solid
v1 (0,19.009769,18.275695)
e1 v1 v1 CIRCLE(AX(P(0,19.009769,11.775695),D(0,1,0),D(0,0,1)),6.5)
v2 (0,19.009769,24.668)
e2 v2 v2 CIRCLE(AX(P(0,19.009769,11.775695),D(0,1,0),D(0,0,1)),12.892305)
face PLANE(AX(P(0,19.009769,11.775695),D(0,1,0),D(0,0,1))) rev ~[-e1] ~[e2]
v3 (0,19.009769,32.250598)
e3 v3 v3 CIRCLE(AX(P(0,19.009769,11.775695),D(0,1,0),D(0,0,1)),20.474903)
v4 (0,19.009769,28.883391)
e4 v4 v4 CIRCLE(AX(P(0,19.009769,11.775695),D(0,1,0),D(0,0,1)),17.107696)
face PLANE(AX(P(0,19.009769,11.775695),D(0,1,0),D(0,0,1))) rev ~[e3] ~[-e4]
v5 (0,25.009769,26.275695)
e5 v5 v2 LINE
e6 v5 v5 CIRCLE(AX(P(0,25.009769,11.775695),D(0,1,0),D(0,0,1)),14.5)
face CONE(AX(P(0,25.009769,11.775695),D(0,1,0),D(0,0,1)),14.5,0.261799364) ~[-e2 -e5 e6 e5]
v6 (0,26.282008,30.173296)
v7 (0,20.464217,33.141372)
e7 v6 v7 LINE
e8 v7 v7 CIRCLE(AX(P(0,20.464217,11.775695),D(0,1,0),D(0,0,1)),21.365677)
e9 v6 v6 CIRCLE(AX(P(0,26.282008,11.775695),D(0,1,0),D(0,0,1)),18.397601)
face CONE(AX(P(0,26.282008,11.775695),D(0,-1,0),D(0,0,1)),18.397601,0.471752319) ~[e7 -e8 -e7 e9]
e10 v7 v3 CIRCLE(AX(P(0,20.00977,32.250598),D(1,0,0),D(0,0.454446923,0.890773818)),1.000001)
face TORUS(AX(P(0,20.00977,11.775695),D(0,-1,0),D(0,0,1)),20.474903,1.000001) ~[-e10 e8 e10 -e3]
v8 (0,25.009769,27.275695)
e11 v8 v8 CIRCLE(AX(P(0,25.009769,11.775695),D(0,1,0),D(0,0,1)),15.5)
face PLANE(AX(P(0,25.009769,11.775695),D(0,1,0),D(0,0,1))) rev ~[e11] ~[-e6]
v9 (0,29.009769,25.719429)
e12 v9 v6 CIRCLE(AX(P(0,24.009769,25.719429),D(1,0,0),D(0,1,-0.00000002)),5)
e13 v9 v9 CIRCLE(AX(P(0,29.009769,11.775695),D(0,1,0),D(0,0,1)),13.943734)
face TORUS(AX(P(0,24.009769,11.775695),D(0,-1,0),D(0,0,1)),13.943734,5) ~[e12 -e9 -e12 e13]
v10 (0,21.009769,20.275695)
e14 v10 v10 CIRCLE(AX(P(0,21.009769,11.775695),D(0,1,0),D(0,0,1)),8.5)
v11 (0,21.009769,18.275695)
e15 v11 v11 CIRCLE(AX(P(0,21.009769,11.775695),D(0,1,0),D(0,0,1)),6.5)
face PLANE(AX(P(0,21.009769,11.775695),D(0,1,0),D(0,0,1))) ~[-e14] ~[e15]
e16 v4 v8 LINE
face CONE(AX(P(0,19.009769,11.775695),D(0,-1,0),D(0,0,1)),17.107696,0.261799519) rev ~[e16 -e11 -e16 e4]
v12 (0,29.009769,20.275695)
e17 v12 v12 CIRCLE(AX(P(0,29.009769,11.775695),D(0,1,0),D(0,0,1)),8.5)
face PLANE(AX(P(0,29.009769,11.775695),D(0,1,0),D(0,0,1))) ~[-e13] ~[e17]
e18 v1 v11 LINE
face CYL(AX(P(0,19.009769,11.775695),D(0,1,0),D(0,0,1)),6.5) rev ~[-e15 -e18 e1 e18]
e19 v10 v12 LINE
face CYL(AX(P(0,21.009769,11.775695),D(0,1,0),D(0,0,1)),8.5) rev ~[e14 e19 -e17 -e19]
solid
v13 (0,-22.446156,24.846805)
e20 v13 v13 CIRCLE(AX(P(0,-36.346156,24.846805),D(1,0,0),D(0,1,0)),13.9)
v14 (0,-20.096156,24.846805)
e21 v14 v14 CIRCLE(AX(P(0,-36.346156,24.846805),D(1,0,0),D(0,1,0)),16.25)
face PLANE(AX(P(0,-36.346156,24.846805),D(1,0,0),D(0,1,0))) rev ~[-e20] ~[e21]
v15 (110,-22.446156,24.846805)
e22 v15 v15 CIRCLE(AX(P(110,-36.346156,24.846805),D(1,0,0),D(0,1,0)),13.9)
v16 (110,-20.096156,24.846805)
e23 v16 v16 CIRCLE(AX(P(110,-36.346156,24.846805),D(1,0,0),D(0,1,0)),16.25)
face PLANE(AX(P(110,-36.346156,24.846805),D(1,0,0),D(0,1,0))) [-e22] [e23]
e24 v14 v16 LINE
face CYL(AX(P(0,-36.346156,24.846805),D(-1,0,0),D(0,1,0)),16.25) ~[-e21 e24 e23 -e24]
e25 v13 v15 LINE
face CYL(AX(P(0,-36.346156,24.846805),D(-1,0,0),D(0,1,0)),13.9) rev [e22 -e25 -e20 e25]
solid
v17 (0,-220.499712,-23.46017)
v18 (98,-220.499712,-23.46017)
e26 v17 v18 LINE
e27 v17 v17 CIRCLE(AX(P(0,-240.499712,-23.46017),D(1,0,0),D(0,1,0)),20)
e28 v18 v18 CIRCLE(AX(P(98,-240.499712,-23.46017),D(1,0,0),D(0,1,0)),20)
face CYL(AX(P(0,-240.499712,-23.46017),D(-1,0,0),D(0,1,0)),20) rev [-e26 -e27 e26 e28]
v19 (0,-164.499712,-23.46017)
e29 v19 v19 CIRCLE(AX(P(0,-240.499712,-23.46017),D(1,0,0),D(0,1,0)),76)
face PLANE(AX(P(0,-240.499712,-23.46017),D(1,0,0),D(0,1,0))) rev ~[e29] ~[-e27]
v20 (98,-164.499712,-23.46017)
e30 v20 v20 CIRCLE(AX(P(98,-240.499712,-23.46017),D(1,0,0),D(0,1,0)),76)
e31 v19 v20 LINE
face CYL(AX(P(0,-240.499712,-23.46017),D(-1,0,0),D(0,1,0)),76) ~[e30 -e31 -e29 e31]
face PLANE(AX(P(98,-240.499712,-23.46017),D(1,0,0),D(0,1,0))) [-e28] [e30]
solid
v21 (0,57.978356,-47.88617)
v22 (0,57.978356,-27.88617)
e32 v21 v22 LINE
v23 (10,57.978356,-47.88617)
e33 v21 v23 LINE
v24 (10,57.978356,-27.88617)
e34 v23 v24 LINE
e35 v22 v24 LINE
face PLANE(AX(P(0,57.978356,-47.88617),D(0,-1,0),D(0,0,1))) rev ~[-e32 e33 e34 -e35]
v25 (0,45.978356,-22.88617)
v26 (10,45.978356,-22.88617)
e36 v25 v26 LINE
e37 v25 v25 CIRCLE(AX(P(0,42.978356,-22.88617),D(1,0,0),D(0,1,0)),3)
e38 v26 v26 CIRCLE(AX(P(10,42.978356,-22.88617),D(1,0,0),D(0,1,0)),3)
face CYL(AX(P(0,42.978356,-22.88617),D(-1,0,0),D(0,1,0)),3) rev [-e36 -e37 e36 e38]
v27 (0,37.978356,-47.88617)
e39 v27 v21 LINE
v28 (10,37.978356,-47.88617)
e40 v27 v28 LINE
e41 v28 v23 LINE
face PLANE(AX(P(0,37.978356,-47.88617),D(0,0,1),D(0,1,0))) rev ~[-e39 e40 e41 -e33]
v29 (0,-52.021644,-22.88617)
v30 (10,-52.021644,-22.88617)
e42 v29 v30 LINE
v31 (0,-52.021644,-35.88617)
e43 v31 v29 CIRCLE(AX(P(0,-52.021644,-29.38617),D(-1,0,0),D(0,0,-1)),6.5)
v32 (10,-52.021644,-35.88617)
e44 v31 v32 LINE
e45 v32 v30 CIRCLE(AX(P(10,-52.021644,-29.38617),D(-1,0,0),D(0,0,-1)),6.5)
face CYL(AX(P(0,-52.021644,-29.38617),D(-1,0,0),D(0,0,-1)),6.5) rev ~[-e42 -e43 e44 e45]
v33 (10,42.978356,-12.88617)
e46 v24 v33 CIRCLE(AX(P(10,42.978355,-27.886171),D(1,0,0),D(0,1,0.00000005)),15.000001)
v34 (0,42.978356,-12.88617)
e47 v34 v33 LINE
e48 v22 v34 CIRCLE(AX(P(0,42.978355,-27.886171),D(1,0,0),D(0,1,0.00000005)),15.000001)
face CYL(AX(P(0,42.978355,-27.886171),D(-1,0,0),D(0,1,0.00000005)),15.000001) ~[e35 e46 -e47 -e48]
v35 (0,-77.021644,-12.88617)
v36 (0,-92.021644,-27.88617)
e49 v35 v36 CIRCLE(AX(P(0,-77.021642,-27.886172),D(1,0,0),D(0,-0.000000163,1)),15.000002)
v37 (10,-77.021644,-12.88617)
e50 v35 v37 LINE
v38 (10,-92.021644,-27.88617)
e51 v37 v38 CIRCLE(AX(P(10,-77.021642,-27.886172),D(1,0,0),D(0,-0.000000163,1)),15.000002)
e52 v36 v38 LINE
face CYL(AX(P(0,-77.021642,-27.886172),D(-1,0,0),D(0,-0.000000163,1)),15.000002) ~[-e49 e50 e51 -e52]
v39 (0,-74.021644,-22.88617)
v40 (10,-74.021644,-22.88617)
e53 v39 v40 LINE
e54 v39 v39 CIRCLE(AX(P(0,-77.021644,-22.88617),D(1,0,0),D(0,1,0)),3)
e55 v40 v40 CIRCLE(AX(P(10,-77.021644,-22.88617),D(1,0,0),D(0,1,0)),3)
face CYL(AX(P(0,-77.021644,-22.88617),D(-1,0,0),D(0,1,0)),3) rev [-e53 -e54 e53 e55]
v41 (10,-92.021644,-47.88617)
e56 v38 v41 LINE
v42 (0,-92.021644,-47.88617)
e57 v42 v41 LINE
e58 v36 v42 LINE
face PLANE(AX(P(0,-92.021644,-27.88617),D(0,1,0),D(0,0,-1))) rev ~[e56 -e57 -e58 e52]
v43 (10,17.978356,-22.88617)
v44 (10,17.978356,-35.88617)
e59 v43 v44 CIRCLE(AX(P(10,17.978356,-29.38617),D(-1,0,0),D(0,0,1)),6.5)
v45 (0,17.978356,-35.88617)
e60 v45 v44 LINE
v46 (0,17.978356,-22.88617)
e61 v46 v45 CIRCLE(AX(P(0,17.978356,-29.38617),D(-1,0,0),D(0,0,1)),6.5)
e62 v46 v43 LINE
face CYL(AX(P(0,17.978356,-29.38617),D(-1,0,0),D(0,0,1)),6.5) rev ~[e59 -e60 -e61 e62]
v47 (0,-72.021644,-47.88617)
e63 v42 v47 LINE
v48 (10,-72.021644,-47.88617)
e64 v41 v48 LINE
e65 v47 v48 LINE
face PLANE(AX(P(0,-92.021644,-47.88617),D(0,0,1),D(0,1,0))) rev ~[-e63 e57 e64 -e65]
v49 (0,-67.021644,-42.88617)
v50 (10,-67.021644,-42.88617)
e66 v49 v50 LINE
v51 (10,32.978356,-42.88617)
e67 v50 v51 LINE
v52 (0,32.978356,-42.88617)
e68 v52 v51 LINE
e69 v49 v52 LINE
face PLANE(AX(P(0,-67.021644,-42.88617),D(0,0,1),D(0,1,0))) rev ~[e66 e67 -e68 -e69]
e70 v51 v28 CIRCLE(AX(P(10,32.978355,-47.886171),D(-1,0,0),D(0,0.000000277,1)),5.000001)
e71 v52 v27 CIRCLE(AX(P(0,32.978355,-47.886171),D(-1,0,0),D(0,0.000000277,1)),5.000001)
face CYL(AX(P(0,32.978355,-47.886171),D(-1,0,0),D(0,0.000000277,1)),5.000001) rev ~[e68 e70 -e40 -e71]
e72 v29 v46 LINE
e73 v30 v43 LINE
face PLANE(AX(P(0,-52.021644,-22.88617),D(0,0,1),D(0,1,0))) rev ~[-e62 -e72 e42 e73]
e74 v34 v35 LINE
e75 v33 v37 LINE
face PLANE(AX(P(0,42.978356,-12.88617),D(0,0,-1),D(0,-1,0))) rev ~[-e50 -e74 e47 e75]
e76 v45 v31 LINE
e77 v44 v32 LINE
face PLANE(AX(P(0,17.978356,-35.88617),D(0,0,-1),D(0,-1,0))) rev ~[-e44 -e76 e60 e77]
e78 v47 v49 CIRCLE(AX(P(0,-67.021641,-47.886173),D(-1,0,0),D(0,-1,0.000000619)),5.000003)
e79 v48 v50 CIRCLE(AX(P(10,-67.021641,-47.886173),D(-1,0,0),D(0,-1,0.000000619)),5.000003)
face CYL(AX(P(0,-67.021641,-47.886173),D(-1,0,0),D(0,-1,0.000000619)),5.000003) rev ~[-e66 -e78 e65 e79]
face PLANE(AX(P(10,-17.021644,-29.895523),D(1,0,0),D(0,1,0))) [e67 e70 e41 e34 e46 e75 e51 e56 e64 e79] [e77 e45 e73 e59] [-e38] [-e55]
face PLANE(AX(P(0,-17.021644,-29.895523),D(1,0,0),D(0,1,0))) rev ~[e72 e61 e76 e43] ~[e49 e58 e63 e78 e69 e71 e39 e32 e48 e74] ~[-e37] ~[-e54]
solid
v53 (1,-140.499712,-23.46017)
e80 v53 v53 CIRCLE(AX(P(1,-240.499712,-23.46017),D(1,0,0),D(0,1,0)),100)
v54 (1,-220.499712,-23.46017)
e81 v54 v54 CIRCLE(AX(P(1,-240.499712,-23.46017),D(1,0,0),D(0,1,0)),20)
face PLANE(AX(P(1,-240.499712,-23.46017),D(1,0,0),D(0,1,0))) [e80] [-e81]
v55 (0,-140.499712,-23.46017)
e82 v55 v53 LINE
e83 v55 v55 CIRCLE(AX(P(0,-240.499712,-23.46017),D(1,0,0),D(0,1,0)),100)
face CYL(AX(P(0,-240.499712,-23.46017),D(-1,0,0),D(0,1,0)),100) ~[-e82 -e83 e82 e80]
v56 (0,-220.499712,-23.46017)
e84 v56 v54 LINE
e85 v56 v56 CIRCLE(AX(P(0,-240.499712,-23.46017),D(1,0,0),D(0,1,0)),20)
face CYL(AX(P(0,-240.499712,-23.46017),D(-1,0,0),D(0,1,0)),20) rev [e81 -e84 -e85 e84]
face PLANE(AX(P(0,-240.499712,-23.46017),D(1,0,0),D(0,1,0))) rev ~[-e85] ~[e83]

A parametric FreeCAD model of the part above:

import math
import FreeCAD as App
import Part
import Sketcher

V = App.Vector
Q = App.Units.Quantity

doc = App.newDocument("Part")
body = doc.addObject("PartDesign::Body", "Body")

# Sketch on YZ plane
sketch1 = doc.addObject("Sketcher::SketchObject", "Sketch")
body.addObject(sketch1)
sketch1.AttachmentSupport = (doc.YZ_Plane, [""])
sketch1.MapMode = "FlatFace"
sketch1.addGeometry([
    Part.ArcOfCircle(Part.Circle(V(20, 32.3, 0), V(0, 0, 1), 1), math.radians(63), math.radians(180)),  # 0
    Part.LineSegment(V(19, 32.3, 0), V(19, 28.9, 0)),  # 1
    Part.LineSegment(V(19, 28.9, 0), V(25, 27.3, 0)),  # 2
    Part.LineSegment(V(25, 27.3, 0), V(25, 26.3, 0)),  # 3
    Part.LineSegment(V(25, 26.3, 0), V(19, 24.7, 0)),  # 4
    Part.LineSegment(V(19, 24.7, 0), V(19, 18.3, 0)),  # 5
    Part.LineSegment(V(19, 18.3, 0), V(21, 18.3, 0)),  # 6
    Part.LineSegment(V(21, 18.3, 0), V(21, 20.3, 0)),  # 7
    Part.LineSegment(V(21, 20.3, 0), V(29, 20.3, 0)),  # 8
    Part.LineSegment(V(29, 20.3, 0), V(29, 25.7, 0)),  # 9
    Part.ArcOfCircle(Part.Circle(V(24, 25.7, 0), V(0, 0, 1), 5), math.radians(0), math.radians(63)),  # 10
    Part.LineSegment(V(26.3, 30.2, 0), V(20.5, 33.1, 0)),  # 11
], False)
sketch1.addGeometry(Part.LineSegment(V(19, 11.8, 0), V(29, 11.8, 0)), True)  # axis
sketch1.addConstraint([
    Sketcher.Constraint("Tangent", 0, 2, 1, 1),
    Sketcher.Constraint("Coincident", 1, 2, 2, 1),
    Sketcher.Constraint("Coincident", 2, 2, 3, 1),
    Sketcher.Constraint("Coincident", 3, 2, 4, 1),
    Sketcher.Constraint("Coincident", 4, 2, 5, 1),
    Sketcher.Constraint("Coincident", 5, 2, 6, 1),
    Sketcher.Constraint("Coincident", 6, 2, 7, 1),
    Sketcher.Constraint("Coincident", 7, 2, 8, 1),
    Sketcher.Constraint("Coincident", 8, 2, 9, 1),
    Sketcher.Constraint("Tangent", 9, 2, 10, 1),
    Sketcher.Constraint("Tangent", 10, 2, 11, 1),
    Sketcher.Constraint("Tangent", 11, 2, 0, 1),
    Sketcher.Constraint("Vertical", 1),
    Sketcher.Constraint("Vertical", 3),
    Sketcher.Constraint("Vertical", 5),
    Sketcher.Constraint("Horizontal", 6),
    Sketcher.Constraint("Vertical", 7),
    Sketcher.Constraint("Horizontal", 8),
    Sketcher.Constraint("Vertical", 9),
    Sketcher.Constraint("Horizontal", 12),
    Sketcher.Constraint("Vertical", 1, 2, 4, 2),
    Sketcher.Constraint("Vertical", 5, 2, 12, 1),
    Sketcher.Constraint("Vertical", 9, 2, 12, 2),
    Sketcher.Constraint("Equal", 6, 7),
    Sketcher.Constraint("Equal", 2, 4),
    Sketcher.Constraint("Radius", 0, 1.000001),
    Sketcher.Constraint("Radius", 10, 5.0),
    Sketcher.Constraint("DistanceX", 6, 1, 6, 2, 2.0),
    Sketcher.Constraint("DistanceX", 8, 1, 8, 2, 8.0),
    Sketcher.Constraint("DistanceY", 3, 2, 3, 1, 1.0),
    Sketcher.Constraint("Angle", 2, Q("-15.000008 deg")),
    Sketcher.Constraint("DistanceX", 10, 3, 2, 2, 1.0),
    Sketcher.Constraint("DistanceY", 5, 2, 3, 2, 8.0),
    Sketcher.Constraint("DistanceY", 12, 1, 5, 2, 6.5),
    Sketcher.Constraint("DistanceY", -1, 1, 4, 2, 24.668),
    Sketcher.Constraint("DistanceY", 2, 2, 10, 2, 2.897601),
    Sketcher.Constraint("DistanceY", 10, 2, 0, 3, 2.077302),
    Sketcher.Constraint("DistanceX", -1, 1, 0, 3, 20.00977),
])
revolution = doc.addObject("PartDesign::Revolution", "Revolution")
body.addObject(revolution)
revolution.Profile = sketch1
revolution.ReferenceAxis = (sketch1, ["Axis0"])
revolution.Angle = 360
body2 = doc.addObject("PartDesign::Body", "Body001")

# Sketch on YZ plane
sketch2 = doc.addObject("Sketcher::SketchObject", "Sketch001")
body2.addObject(sketch2)
sketch2.AttachmentSupport = (doc.getObject("YZ_Plane001"), [""])
sketch2.MapMode = "FlatFace"
sketch2.addGeometry([
    Part.Circle(V(-36, 25, 0), V(0, 0, 1), 16),
    Part.Circle(V(-36, 25, 0), V(0, 0, 1), 14),
], False)
sketch2.addConstraint([
    Sketcher.Constraint("Coincident", 1, 3, 0, 3),
    Sketcher.Constraint("Diameter", 0, 32.5),
    Sketcher.Constraint("Diameter", 1, 27.8),
    Sketcher.Constraint("DistanceX", 0, 3, -1, 1, 36.346156),
    Sketcher.Constraint("DistanceY", -1, 1, 0, 3, 24.846805),
])
pad1 = doc.addObject("PartDesign::Pad", "Pad")
body2.addObject(pad1)
pad1.Profile = sketch2
pad1.Length = 110
body3 = doc.addObject("PartDesign::Body", "Body002")

# Sketch on YZ plane
sketch3 = doc.addObject("Sketcher::SketchObject", "Sketch002")
body3.addObject(sketch3)
sketch3.AttachmentSupport = (doc.getObject("YZ_Plane002"), [""])
sketch3.MapMode = "FlatFace"
sketch3.addGeometry([
    Part.Circle(V(-240, -23, 0), V(0, 0, 1), 100),
    Part.Circle(V(-240, -23, 0), V(0, 0, 1), 20),
], False)
sketch3.addConstraint([
    Sketcher.Constraint("Coincident", 1, 3, 0, 3),
    Sketcher.Constraint("Diameter", 0, 200.0),
    Sketcher.Constraint("Diameter", 1, 40.0),
    Sketcher.Constraint("DistanceX", 0, 3, -1, 1, 240.499712),
    Sketcher.Constraint("DistanceY", 0, 3, -1, 1, 23.46017),
])
pad2 = doc.addObject("PartDesign::Pad", "Pad001")
body3.addObject(pad2)
pad2.Profile = sketch3
pad2.Length = 1
body4 = doc.addObject("PartDesign::Body", "Body003")

# Sketch on YZ plane
sketch4 = doc.addObject("Sketcher::SketchObject", "Sketch003")
body4.addObject(sketch4)
sketch4.AttachmentSupport = (doc.getObject("YZ_Plane003"), [""])
sketch4.MapMode = "FlatFace"
sketch4.addGeometry([
    Part.Circle(V(-240, -23, 0), V(0, 0, 1), 76),
    Part.Circle(V(-240, -23, 0), V(0, 0, 1), 20),
], False)
sketch4.addConstraint([
    Sketcher.Constraint("Coincident", 1, 3, 0, 3),
    Sketcher.Constraint("Diameter", 0, 152.0),
    Sketcher.Constraint("Diameter", 1, 40.0),
    Sketcher.Constraint("DistanceX", 0, 3, -1, 1, 240.499712),
    Sketcher.Constraint("DistanceY", 0, 3, -1, 1, 23.46017),
])
pad3 = doc.addObject("PartDesign::Pad", "Pad002")
body4.addObject(pad3)
pad3.Profile = sketch4
pad3.Length = 98
body5 = doc.addObject("PartDesign::Body", "Body004")

# Sketch on YZ plane
sketch5 = doc.addObject("Sketcher::SketchObject", "Sketch004")
body5.addObject(sketch5)
sketch5.AttachmentSupport = (doc.getObject("YZ_Plane004"), [""])
sketch5.MapMode = "FlatFace"
sketch5.addGeometry([
    Part.LineSegment(V(43, -12.9, 0), V(-77, -12.9, 0)),  # 0
    Part.ArcOfCircle(Part.Circle(V(-77, -27.9, 0), V(0, 0, 1), 15), math.radians(90), math.radians(180)),  # 1
    Part.LineSegment(V(-92, -27.9, 0), V(-92, -47.9, 0)),  # 2
    Part.LineSegment(V(-92, -47.9, 0), V(-72, -47.9, 0)),  # 3
    Part.ArcOfCircle(Part.Circle(V(-67, -47.9, 0), V(0, 0, 1), 5), math.radians(90), math.radians(180)),  # 4
    Part.LineSegment(V(-67, -42.9, 0), V(33, -42.9, 0)),  # 5
    Part.ArcOfCircle(Part.Circle(V(33, -47.9, 0), V(0, 0, 1), 5), math.radians(0), math.radians(90)),  # 6
    Part.LineSegment(V(38, -47.9, 0), V(58, -47.9, 0)),  # 7
    Part.LineSegment(V(58, -47.9, 0), V(58, -27.9, 0)),  # 8
    Part.ArcOfCircle(Part.Circle(V(43, -27.9, 0), V(0, 0, 1), 15), math.radians(0), math.radians(90)),  # 9
    Part.ArcOfCircle(Part.Circle(V(-52, -29.4, 0), V(0, 0, 1), 6.5), math.radians(90), math.radians(270)),  # 10
    Part.LineSegment(V(-52, -22.9, 0), V(18, -22.9, 0)),  # 11
    Part.ArcOfCircle(Part.Circle(V(18, -29.4, 0), V(0, 0, 1), 6.5), math.radians(-90), math.radians(90)),  # 12
    Part.LineSegment(V(18, -35.9, 0), V(-52, -35.9, 0)),  # 13
    Part.Circle(V(-77, -22.9, 0), V(0, 0, 1), 3),  # 14
    Part.Circle(V(43, -22.9, 0), V(0, 0, 1), 3),  # 15
], False)
sketch5.addConstraint([
    Sketcher.Constraint("Tangent", 0, 2, 1, 1),
    Sketcher.Constraint("Tangent", 1, 2, 2, 1),
    Sketcher.Constraint("Coincident", 2, 2, 3, 1),
    Sketcher.Constraint("Coincident", 3, 2, 4, 2),
    Sketcher.Constraint("Tangent", 4, 1, 5, 1),
    Sketcher.Constraint("Tangent", 5, 2, 6, 2),
    Sketcher.Constraint("Coincident", 6, 1, 7, 1),
    Sketcher.Constraint("Coincident", 7, 2, 8, 1),
    Sketcher.Constraint("Tangent", 8, 2, 9, 1),
    Sketcher.Constraint("Tangent", 9, 2, 0, 1),
    Sketcher.Constraint("Tangent", 10, 1, 11, 1),
    Sketcher.Constraint("Tangent", 11, 2, 12, 2),
    Sketcher.Constraint("Tangent", 12, 1, 13, 1),
    Sketcher.Constraint("Tangent", 13, 2, 10, 2),
    Sketcher.Constraint("Horizontal", 0),
    Sketcher.Constraint("Vertical", 2),
    Sketcher.Constraint("Horizontal", 3),
    Sketcher.Constraint("Horizontal", 5),
    Sketcher.Constraint("Horizontal", 7),
    Sketcher.Constraint("Vertical", 8),
    Sketcher.Constraint("Horizontal", 11),
    Sketcher.Constraint("Horizontal", 13),
    Sketcher.Constraint("Equal", 4, 6),
    Sketcher.Constraint("Equal", 1, 9),
    Sketcher.Constraint("Equal", 14, 15),
    Sketcher.Constraint("Horizontal", 14, 3, 15, 3),
    Sketcher.Constraint("Horizontal", 6, 3, 2, 2),
    Sketcher.Constraint("Horizontal", 3, 2, 6, 1),
    Sketcher.Constraint("Horizontal", 15, 3, 10, 1),
    Sketcher.Constraint("Vertical", 9, 3, 15, 3),
    Sketcher.Constraint("Vertical", 14, 3, 0, 2),
    Sketcher.Constraint("Equal", 3, 7),
    Sketcher.Constraint("Equal", 7, 2),
    Sketcher.Constraint("Diameter", 14, 6.0),
    Sketcher.Constraint("Radius", 6, 5.000001),
    Sketcher.Constraint("Radius", 9, 15.000001),
    Sketcher.Constraint("Radius", 10, 6.5),
    Sketcher.Constraint("DistanceX", 0, 2, 0, 1, 120.0),
    Sketcher.Constraint("DistanceX", 3, 1, 3, 2, 20.0),
    Sketcher.Constraint("DistanceX", 11, 1, 11, 2, 70.0),
    Sketcher.Constraint("DistanceX", 10, 3, 6, 3, 84.999999),
    Sketcher.Constraint("DistanceY", 6, 3, 14, 3, 25.000001),
    Sketcher.Constraint("DistanceX", 1, 3, -1, 1, 77.021642),
    Sketcher.Constraint("DistanceY", 6, 3, -1, 1, 47.886171),
])
pad4 = doc.addObject("PartDesign::Pad", "Pad003")
body5.addObject(pad4)
pad4.Profile = sketch5
pad4.Length = 10

doc.recompute()
